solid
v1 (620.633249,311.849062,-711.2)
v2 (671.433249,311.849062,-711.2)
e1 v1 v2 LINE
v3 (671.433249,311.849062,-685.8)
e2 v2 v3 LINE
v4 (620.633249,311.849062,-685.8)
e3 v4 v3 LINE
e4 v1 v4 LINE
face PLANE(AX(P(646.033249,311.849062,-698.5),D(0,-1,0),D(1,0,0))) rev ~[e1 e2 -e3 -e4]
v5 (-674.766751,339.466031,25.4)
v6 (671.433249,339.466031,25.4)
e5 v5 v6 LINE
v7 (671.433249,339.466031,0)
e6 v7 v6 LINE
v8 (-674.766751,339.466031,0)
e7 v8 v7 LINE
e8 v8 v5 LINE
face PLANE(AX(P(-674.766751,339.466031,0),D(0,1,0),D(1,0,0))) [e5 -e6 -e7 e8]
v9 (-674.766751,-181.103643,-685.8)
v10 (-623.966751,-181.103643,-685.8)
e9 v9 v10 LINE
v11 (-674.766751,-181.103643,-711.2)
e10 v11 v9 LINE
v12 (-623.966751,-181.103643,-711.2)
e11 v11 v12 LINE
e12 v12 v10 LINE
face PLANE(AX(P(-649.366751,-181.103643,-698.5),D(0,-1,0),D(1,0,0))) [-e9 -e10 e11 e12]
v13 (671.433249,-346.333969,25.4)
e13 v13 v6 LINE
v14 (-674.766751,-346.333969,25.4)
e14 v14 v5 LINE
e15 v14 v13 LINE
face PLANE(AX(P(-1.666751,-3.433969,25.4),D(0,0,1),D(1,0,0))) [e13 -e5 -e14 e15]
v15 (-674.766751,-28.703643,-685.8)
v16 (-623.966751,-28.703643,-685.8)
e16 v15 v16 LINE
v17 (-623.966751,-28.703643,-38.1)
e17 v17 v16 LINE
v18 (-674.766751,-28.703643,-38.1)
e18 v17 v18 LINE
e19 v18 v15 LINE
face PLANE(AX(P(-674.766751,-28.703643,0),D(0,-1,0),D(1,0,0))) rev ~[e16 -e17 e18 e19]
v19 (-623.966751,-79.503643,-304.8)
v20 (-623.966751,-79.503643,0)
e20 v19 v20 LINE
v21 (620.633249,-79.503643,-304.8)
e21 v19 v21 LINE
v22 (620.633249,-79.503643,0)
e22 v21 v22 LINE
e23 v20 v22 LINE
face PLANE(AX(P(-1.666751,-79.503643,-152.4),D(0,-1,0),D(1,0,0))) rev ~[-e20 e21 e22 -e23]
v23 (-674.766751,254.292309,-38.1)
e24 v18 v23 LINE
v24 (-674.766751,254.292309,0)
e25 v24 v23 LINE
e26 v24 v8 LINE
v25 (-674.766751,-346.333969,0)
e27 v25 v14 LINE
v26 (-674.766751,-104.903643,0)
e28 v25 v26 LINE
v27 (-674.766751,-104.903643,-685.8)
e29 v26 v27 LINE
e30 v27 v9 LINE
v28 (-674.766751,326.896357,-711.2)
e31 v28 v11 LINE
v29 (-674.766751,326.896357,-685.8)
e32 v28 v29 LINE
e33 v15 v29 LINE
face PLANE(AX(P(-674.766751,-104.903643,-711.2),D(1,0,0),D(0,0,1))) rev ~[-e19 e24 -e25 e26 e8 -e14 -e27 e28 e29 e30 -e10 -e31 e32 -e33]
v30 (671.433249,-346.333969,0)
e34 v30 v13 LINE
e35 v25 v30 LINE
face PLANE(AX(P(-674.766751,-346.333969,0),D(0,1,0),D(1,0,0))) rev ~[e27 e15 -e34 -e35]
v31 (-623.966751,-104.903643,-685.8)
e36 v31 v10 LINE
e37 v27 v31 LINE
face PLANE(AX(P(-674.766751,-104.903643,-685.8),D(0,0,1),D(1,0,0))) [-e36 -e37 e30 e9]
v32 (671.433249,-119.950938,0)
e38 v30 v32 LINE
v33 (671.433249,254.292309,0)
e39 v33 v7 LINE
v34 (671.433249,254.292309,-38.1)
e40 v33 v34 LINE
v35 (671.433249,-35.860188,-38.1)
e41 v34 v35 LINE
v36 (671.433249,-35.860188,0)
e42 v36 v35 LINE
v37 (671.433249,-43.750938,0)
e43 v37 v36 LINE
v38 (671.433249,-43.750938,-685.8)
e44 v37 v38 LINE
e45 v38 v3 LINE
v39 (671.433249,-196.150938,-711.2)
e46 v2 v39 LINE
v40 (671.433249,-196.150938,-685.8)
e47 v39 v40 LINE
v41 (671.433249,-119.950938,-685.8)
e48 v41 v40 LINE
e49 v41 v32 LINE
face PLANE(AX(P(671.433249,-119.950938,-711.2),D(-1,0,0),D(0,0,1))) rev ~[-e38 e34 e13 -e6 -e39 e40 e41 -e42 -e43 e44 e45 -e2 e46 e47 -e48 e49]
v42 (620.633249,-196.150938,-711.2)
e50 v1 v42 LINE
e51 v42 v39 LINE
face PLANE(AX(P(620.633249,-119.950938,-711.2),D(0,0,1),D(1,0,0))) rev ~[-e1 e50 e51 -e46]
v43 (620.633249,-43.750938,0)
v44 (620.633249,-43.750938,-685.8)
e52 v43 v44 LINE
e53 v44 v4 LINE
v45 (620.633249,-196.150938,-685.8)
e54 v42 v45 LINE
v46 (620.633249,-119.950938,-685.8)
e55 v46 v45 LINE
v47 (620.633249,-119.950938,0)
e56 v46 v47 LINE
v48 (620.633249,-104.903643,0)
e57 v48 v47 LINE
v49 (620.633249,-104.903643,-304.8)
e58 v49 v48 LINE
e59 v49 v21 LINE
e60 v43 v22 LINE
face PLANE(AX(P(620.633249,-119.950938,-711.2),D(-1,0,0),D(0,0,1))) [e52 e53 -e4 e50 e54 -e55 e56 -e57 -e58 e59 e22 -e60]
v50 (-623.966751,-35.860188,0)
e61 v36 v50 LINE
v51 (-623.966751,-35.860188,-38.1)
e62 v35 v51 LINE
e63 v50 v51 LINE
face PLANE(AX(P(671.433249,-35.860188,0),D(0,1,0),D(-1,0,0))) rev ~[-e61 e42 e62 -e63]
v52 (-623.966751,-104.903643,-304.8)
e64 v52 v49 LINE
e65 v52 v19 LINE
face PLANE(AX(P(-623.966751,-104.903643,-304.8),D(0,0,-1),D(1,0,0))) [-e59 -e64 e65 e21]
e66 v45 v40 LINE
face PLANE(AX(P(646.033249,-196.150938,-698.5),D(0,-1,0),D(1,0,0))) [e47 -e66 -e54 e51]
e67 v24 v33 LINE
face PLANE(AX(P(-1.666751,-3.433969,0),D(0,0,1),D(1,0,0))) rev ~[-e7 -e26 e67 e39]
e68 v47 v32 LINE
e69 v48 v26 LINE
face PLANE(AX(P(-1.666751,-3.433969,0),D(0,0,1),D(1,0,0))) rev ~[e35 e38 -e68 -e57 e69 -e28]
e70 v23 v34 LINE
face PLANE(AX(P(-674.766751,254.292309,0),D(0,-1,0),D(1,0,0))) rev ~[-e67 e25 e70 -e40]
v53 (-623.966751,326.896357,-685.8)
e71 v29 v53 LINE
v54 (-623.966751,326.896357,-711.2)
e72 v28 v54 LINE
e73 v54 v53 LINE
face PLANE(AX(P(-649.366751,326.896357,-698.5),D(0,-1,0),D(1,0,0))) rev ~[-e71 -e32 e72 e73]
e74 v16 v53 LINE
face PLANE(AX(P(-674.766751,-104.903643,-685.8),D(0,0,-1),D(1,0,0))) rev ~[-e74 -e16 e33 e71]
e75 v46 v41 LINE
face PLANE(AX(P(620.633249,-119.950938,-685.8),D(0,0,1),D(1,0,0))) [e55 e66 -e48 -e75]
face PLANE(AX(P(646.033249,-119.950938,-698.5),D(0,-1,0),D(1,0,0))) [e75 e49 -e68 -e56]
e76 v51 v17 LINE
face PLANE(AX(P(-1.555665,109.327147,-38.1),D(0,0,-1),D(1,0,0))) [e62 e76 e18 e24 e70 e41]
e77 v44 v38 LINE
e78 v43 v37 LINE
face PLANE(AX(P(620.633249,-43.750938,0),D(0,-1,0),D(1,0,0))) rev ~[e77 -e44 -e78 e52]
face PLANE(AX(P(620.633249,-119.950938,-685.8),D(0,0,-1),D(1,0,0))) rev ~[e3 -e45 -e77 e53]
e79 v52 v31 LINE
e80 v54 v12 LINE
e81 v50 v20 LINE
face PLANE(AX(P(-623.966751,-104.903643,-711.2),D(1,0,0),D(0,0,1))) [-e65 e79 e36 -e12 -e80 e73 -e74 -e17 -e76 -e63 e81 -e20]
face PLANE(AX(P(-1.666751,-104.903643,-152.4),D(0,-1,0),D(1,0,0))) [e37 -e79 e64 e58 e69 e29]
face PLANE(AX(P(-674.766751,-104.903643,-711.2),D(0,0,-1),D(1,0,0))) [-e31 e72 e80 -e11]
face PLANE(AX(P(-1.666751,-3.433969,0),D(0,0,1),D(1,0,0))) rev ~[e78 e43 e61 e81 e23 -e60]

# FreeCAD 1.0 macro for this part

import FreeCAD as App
import Part
import Sketcher
Q = App.Units.Quantity


def add_polygon(sketch, points):
    """Adds a closed chain of lines whose ends are joined by coincident constraints."""
    first, n = sketch.GeometryCount, len(points)
    for a, b in zip(points, points[1:] + points[:1]):
        sketch.addGeometry(Part.LineSegment(App.Vector(*a, 0), App.Vector(*b, 0)), False)
    for i in range(n):
        sketch.addConstraint(Sketcher.Constraint("Coincident", first + i, 2, first + (i + 1) % n, 1))

doc = App.newDocument("Part")
params = doc.addObject("Spreadsheet::Sheet", "Params")
for row, (alias, value) in enumerate([
    ("sketch1_width", "53 in"),
    ("sketch1_height", "27 in"),
    ("pad1_length", "1 in"),
    ("sketch2_width", "53 in"),
    ("sketch2_width2", "51 in"),
    ("pad2_length", "1.5 in"),
    ("sketch3_width", "2 in"),
    ("sketch3_height", "3 in"),
    ("pad3_length", "27 in"),
    ("sketch4_width", "2 in"),
    ("sketch4_height", "1 in"),
    ("pad4_length", "3 in"),
    ("pad4_length2", "17 in"),
    ("sketch5_width", "49 in"),
    ("sketch5_height", "12 in"),
    ("pad5_length", "1 in"),
    ("sketch6_width", "2 in"),
    ("sketch6_height", "1 in"),
    ("pad6_length", "17 in"),
    ("pad6_length2", "3 in"),
], start=1):
    params.set(f"A{row}", alias)
    params.set(f"B{row}", "=" + value)
    params.setAlias(f"B{row}", alias)

body = doc.addObject("PartDesign::Body", "Body")

# Sketch on XY plane
sketch1 = body.newObject("Sketcher::SketchObject", "Sketch")
sketch1.AttachmentSupport = (doc.getObject("XY_Plane"), [""])
sketch1.MapMode = "FlatFace"
add_polygon(sketch1, [(-675, 339), (-675, -346), (671, -346), (671, 339)])  # lines 0-3
sketch1.addConstraint([
    Sketcher.Constraint("Vertical", 0),
    Sketcher.Constraint("Horizontal", 1),
    Sketcher.Constraint("Vertical", 2),
    Sketcher.Constraint("Horizontal", 3),
    Sketcher.Constraint("DistanceX", 1, 1, 1, 2, Q("53 in")),
    Sketcher.Constraint("DistanceY", 0, 2, 0, 1, Q("27 in")),
    Sketcher.Constraint("DistanceX", 0, 2, -1, 1, 674.766751),
    Sketcher.Constraint("DistanceY", 0, 2, -1, 1, 346.333969),
])
sketch1.setExpression("Constraints[8]", "Params.sketch1_width")
sketch1.setExpression("Constraints[9]", "Params.sketch1_height")
pad1 = body.newObject("PartDesign::Pad", "Pad")
pad1.Profile = sketch1
pad1.setExpression("Length", "Params.pad1_length")

# Sketch on XY plane
sketch2 = body.newObject("Sketcher::SketchObject", "Sketch001")
sketch2.AttachmentSupport = (doc.getObject("XY_Plane"), [""])
sketch2.MapMode = "FlatFace"
add_polygon(sketch2, [(-675, 254), (671, 254), (671, -36), (-624, -36), (-624, -29), (-675, -29)])  # lines 0-5
sketch2.addConstraint([
    Sketcher.Constraint("Horizontal", 0),
    Sketcher.Constraint("Vertical", 1),
    Sketcher.Constraint("Horizontal", 2),
    Sketcher.Constraint("Vertical", 3),
    Sketcher.Constraint("Horizontal", 4),
    Sketcher.Constraint("Vertical", 5),
    Sketcher.Constraint("DistanceX", 0, 1, 0, 2, Q("53 in")),
    Sketcher.Constraint("DistanceX", 2, 2, 2, 1, Q("51 in")),
    Sketcher.Constraint("DistanceY", 1, 2, 1, 1, 290.152498),
    Sketcher.Constraint("DistanceY", 3, 1, 3, 2, 7.156545),
    Sketcher.Constraint("DistanceX", -1, 1, 0, 2, 671.433249),
    Sketcher.Constraint("DistanceY", -1, 1, 0, 2, 254.292309),
])
sketch2.setExpression("Constraints[12]", "Params.sketch2_width")
sketch2.setExpression("Constraints[13]", "Params.sketch2_width2")
pad2 = body.newObject("PartDesign::Pad", "Pad001")
pad2.Profile = sketch2
pad2.setExpression("Length", "Params.pad2_length")
pad2.Reversed = True

# Sketch on XY plane
sketch3 = body.newObject("Sketcher::SketchObject", "Sketch002")
sketch3.AttachmentSupport = (doc.getObject("XY_Plane"), [""])
sketch3.MapMode = "FlatFace"
add_polygon(sketch3, [(621, -120), (621, -44), (671, -44), (671, -120)])  # lines 0-3
add_polygon(sketch3, [(-675, -105), (-675, -29), (-624, -29), (-624, -105)])  # lines 4-7
sketch3.addConstraint([
    Sketcher.Constraint("Vertical", 0),
    Sketcher.Constraint("Horizontal", 1),
    Sketcher.Constraint("Vertical", 2),
    Sketcher.Constraint("Horizontal", 3),
    Sketcher.Constraint("Vertical", 4),
    Sketcher.Constraint("Horizontal", 5),
    Sketcher.Constraint("Vertical", 6),
    Sketcher.Constraint("Horizontal", 7),
    Sketcher.Constraint("Equal", 3, 5),
    Sketcher.Constraint("Equal", 2, 4),
    Sketcher.Constraint("DistanceX", 1, 1, 1, 2, Q("2 in")),
    Sketcher.Constraint("DistanceY", 0, 1, 0, 2, Q("3 in")),
    Sketcher.Constraint("DistanceX", 4, 2, 0, 2, Q("51 in")),
    Sketcher.Constraint("DistanceX", -1, 1, 0, 2, 620.633249),
    Sketcher.Constraint("DistanceY", 0, 2, -1, 1, 43.750938),
    Sketcher.Constraint("DistanceY", 4, 2, -1, 1, 28.703643),
])
sketch3.setExpression("Constraints[18]", "Params.sketch3_width")
sketch3.setExpression("Constraints[19]", "Params.sketch3_height")
pad3 = body.newObject("PartDesign::Pad", "Pad002")
pad3.Profile = sketch3
pad3.setExpression("Length", "Params.pad3_length")
pad3.Reversed = True

# Sketch on XZ plane
sketch4 = body.newObject("Sketcher::SketchObject", "Sketch003")
sketch4.AttachmentSupport = (doc.getObject("XZ_Plane"), [""])
sketch4.MapMode = "FlatFace"
sketch4.AttachmentOffset = App.Placement(App.Vector(0, 0, 104.903643), App.Rotation())
add_polygon(sketch4, [(-675, -686), (-675, -711), (-624, -711), (-624, -686)])  # lines 0-3
sketch4.addConstraint([
    Sketcher.Constraint("Vertical", 0),
    Sketcher.Constraint("Horizontal", 1),
    Sketcher.Constraint("Vertical", 2),
    Sketcher.Constraint("Horizontal", 3),
    Sketcher.Constraint("DistanceX", 1, 1, 1, 2, Q("2 in")),
    Sketcher.Constraint("DistanceY", 0, 2, 0, 1, Q("1 in")),
    Sketcher.Constraint("DistanceY", 0, 2, -1, 1, Q("28 in")),
    Sketcher.Constraint("DistanceX", 0, 2, -1, 1, 674.766751),
])
sketch4.setExpression("Constraints[8]", "Params.sketch4_width")
sketch4.setExpression("Constraints[9]", "Params.sketch4_height")
pad4 = body.newObject("PartDesign::Pad", "Pad003")
pad4.Profile = sketch4
pad4.Type = "TwoLengths"
pad4.setExpression("Length", "Params.pad4_length")
pad4.setExpression("Length2", "Params.pad4_length2")

# Sketch on XZ plane
sketch5 = body.newObject("Sketcher::SketchObject", "Sketch004")
sketch5.AttachmentSupport = (doc.getObject("XZ_Plane"), [""])
sketch5.MapMode = "FlatFace"
sketch5.AttachmentOffset = App.Placement(App.Vector(0, 0, 104.903643), App.Rotation())
add_polygon(sketch5, [(-624, 0), (-624, -305), (621, -305), (621, 0)])  # lines 0-3
sketch5.addConstraint([
    Sketcher.Constraint("Vertical", 0),
    Sketcher.Constraint("Horizontal", 1),
    Sketcher.Constraint("Vertical", 2),
    Sketcher.Constraint("Horizontal", 3),
    Sketcher.Constraint("PointOnObject", 2, 2, -1),
    Sketcher.Constraint("DistanceX", 1, 1, 1, 2, Q("49 in")),
    Sketcher.Constraint("DistanceY", 0, 2, 0, 1, Q("12 in")),
    Sketcher.Constraint("DistanceX", 0, 2, -1, 1, 623.966751),
])
sketch5.setExpression("Constraints[9]", "Params.sketch5_width")
sketch5.setExpression("Constraints[10]", "Params.sketch5_height")
pad5 = body.newObject("PartDesign::Pad", "Pad004")
pad5.Profile = sketch5
pad5.setExpression("Length", "Params.pad5_length")
pad5.Reversed = True

# Sketch on XZ plane
sketch6 = body.newObject("Sketcher::SketchObject", "Sketch005")
sketch6.AttachmentSupport = (doc.getObject("XZ_Plane"), [""])
sketch6.MapMode = "FlatFace"
sketch6.AttachmentOffset = App.Placement(App.Vector(0, 0, 119.950938), App.Rotation())
add_polygon(sketch6, [(621, -686), (621, -711), (671, -711), (671, -686)])  # lines 0-3
sketch6.addConstraint([
    Sketcher.Constraint("Vertical", 0),
    Sketcher.Constraint("Horizontal", 1),
    Sketcher.Constraint("Vertical", 2),
    Sketcher.Constraint("Horizontal", 3),
    Sketcher.Constraint("DistanceX", 1, 1, 1, 2, Q("2 in")),
    Sketcher.Constraint("DistanceY", 0, 2, 0, 1, Q("1 in")),
    Sketcher.Constraint("DistanceY", 0, 2, -1, 1, Q("28 in")),
    Sketcher.Constraint("DistanceX", -1, 1, 0, 2, 620.633249),
])
sketch6.setExpression("Constraints[8]", "Params.sketch6_width")
sketch6.setExpression("Constraints[9]", "Params.sketch6_height")
pad6 = body.newObject("PartDesign::Pad", "Pad005")
pad6.Profile = sketch6
pad6.Type = "TwoLengths"
pad6.setExpression("Length", "Params.pad6_length")
pad6.setExpression("Length2", "Params.pad6_length2")
pad6.Reversed = True

doc.recompute()
